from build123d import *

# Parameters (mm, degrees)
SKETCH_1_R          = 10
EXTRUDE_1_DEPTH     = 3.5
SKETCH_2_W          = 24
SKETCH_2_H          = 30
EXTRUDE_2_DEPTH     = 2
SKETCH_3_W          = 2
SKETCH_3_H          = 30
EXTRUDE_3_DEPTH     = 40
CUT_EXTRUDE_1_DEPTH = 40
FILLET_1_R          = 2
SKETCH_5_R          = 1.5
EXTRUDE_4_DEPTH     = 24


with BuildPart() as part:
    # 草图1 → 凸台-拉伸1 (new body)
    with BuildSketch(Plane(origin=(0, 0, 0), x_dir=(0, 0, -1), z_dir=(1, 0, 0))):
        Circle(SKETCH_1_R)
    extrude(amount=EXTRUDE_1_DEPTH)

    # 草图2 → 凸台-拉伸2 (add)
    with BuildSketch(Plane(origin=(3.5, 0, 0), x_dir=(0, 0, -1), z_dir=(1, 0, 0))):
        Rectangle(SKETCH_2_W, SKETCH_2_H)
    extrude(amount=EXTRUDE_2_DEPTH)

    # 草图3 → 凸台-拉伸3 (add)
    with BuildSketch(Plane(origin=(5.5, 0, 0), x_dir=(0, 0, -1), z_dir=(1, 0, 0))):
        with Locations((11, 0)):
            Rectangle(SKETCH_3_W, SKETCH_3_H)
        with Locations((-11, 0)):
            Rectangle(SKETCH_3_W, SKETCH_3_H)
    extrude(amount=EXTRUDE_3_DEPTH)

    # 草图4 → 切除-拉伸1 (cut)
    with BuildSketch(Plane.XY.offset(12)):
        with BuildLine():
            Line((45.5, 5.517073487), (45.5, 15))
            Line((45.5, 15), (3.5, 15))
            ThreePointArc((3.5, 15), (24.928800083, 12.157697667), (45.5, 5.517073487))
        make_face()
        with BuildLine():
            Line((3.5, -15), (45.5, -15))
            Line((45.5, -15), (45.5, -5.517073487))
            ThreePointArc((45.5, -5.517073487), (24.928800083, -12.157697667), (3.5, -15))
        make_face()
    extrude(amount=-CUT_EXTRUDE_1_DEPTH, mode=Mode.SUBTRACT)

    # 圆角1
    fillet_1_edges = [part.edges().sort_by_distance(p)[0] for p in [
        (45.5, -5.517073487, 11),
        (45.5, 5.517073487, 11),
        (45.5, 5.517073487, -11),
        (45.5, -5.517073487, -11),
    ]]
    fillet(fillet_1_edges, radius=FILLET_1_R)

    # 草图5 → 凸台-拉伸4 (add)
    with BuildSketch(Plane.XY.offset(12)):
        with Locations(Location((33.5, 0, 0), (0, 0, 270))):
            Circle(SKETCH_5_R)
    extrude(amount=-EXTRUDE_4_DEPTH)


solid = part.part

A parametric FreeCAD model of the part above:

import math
import FreeCAD as App
import Part
import Sketcher

V = App.Vector
Q = App.Units.Quantity


def edges_at(feature, points):
    """Names of the edges that pass closest to the given points."""
    edges = feature.Shape.Edges
    near = lambda p: min(range(len(edges)), key=lambda i: edges[i].distToShape(Part.Vertex(*p))[0])
    return sorted({f"Edge{near(p) + 1}" for p in points})


def add_polygon(sketch, points):
    """Adds a closed chain of lines whose ends are joined by coincident constraints."""
    first, n = sketch.GeometryCount, len(points)
    for a, b in zip(points, points[1:] + points[:1]):
        sketch.addGeometry(Part.LineSegment(App.Vector(*a, 0), App.Vector(*b, 0)), False)
    for i in range(n):
        sketch.addConstraint(Sketcher.Constraint("Coincident", first + i, 2, first + (i + 1) % n, 1))

doc = App.newDocument("Part")
params = doc.addObject("Spreadsheet::Sheet", "Params")
for row, (alias, value) in enumerate([
    ("sketch1_diameter", "20 mm"),
    ("pad1_length", "3.5 mm"),
    ("sketch2_width", "30 mm"),
    ("sketch2_height", "24 mm"),
    ("pad2_length", "2 mm"),
    ("sketch3_width", "30 mm"),
    ("sketch3_height", "2 mm"),
    ("pad3_length", "40 mm"),
    ("sketch4_radius", "120 mm"),
    ("sketch4_width", "42 mm"),
    ("pocket1_length", "40 mm"),
    ("fillet_radius", "2 mm"),
    ("sketch5_diameter", "3 mm"),
    ("pad4_length", "24 mm"),
], start=1):
    params.set(f"A{row}", alias)
    params.set(f"B{row}", "=" + value)
    params.setAlias(f"B{row}", alias)

body = doc.addObject("PartDesign::Body", "Body")

sketch1 = doc.addObject("Sketcher::SketchObject", "Sketch")
body.addObject(sketch1)
sketch1.AttachmentSupport = (doc.YZ_Plane, [""])
sketch1.MapMode = "FlatFace"
sketch1.addGeometry(Part.Circle(V(0, 0, 0), V(0, 0, 1), 10), False)
sketch1.addConstraint([
    Sketcher.Constraint("Coincident", 0, 3, -1, 1),
    Sketcher.Constraint("Diameter", 0, Q("20 mm")),
])
sketch1.setExpression("Constraints[1]", "Params.sketch1_diameter")
pad1 = doc.addObject("PartDesign::Pad", "Pad")
body.addObject(pad1)
pad1.Profile = sketch1
pad1.setExpression("Length", "Params.pad1_length")

sketch2 = doc.addObject("Sketcher::SketchObject", "Sketch001")
body.addObject(sketch2)
sketch2.AttachmentSupport = (doc.YZ_Plane, [""])
sketch2.MapMode = "FlatFace"
sketch2.AttachmentOffset = App.Placement(V(0, 0, 3.5), App.Rotation())
add_polygon(sketch2, [(15, 12), (-15, 12), (-15, -12), (15, -12)])
sketch2.addConstraint([
    Sketcher.Constraint("Horizontal", 0),
    Sketcher.Constraint("Vertical", 1),
    Sketcher.Constraint("Horizontal", 2),
    Sketcher.Constraint("Vertical", 3),
    Sketcher.Constraint("Symmetric", 0, 2, 2, 2, -1, 1),
    Sketcher.Constraint("DistanceX", 0, 2, 0, 1, Q("30 mm")),
    Sketcher.Constraint("DistanceY", 1, 2, 1, 1, Q("24 mm")),
])
sketch2.setExpression("Constraints[9]", "Params.sketch2_width")
sketch2.setExpression("Constraints[10]", "Params.sketch2_height")
pad2 = doc.addObject("PartDesign::Pad", "Pad001")
body.addObject(pad2)
pad2.Profile = sketch2
pad2.setExpression("Length", "Params.pad2_length")

sketch3 = doc.addObject("Sketcher::SketchObject", "Sketch002")
body.addObject(sketch3)
sketch3.AttachmentSupport = (doc.YZ_Plane, [""])
sketch3.MapMode = "FlatFace"
sketch3.AttachmentOffset = App.Placement(V(0, 0, 5.5), App.Rotation())
add_polygon(sketch3, [(15, -10), (-15, -10), (-15, -12), (15, -12)])
add_polygon(sketch3, [(15, 12), (-15, 12), (-15, 10), (15, 10)])
sketch3.addConstraint([
    Sketcher.Constraint("Horizontal", 0),
    Sketcher.Constraint("Vertical", 1),
    Sketcher.Constraint("Horizontal", 2),
    Sketcher.Constraint("Vertical", 3),
    Sketcher.Constraint("Horizontal", 4),
    Sketcher.Constraint("Vertical", 5),
    Sketcher.Constraint("Horizontal", 6),
    Sketcher.Constraint("Vertical", 7),
    Sketcher.Constraint("Symmetric", 2, 2, 4, 2, -1, 1),
    Sketcher.Constraint("Symmetric", 0, 2, 6, 2, -1, 1),
    Sketcher.Constraint("Vertical", 1, 2, 4, 2),
    Sketcher.Constraint("DistanceX", 0, 2, 0, 1, Q("30 mm")),
    Sketcher.Constraint("DistanceY", 1, 2, 1, 1, Q("2 mm")),
    Sketcher.Constraint("DistanceY", 0, 2, -1, 1, Q("10 mm")),
])
sketch3.setExpression("Constraints[19]", "Params.sketch3_width")
sketch3.setExpression("Constraints[20]", "Params.sketch3_height")
pad3 = doc.addObject("PartDesign::Pad", "Pad002")
body.addObject(pad3)
pad3.Profile = sketch3
pad3.setExpression("Length", "Params.pad3_length")

sketch4 = doc.addObject("Sketcher::SketchObject", "Sketch003")
body.addObject(sketch4)
sketch4.AttachmentSupport = (doc.XY_Plane, [""])
sketch4.MapMode = "FlatFace"
sketch4.AttachmentOffset = App.Placement(V(0, 0, 12), App.Rotation())
sketch4.addGeometry([
    Part.LineSegment(V(46, 6, 0), V(46, 15, 0)),
    Part.LineSegment(V(46, 15, 0), V(4, 15, 0)),
    Part.ArcOfCircle(Part.Circle(V(-2, -105, 0), V(0, 0, 1), 120), math.radians(67), math.radians(88)),
    Part.LineSegment(V(4, -15, 0), V(46, -15, 0)),
    Part.LineSegment(V(46, -15, 0), V(46, -6, 0)),
    Part.ArcOfCircle(Part.Circle(V(-2, 105, 0), V(0, 0, 1), 120), math.radians(-88), math.radians(-67)),
], False)
sketch4.addConstraint([
    Sketcher.Constraint("Coincident", 0, 2, 1, 1),
    Sketcher.Constraint("Coincident", 1, 2, 2, 2),
    Sketcher.Constraint("Coincident", 2, 1, 0, 1),
    Sketcher.Constraint("Coincident", 3, 2, 4, 1),
    Sketcher.Constraint("Coincident", 4, 2, 5, 2),
    Sketcher.Constraint("Coincident", 5, 1, 3, 1),
    Sketcher.Constraint("Vertical", 0),
    Sketcher.Constraint("Horizontal", 1),
    Sketcher.Constraint("Horizontal", 3),
    Sketcher.Constraint("Vertical", 4),
    Sketcher.Constraint("Equal", 2, 5),
    Sketcher.Constraint("Symmetric", 2, 3, 5, 3, -1),
    Sketcher.Constraint("Symmetric", 0, 2, 3, 2, -1),
    Sketcher.Constraint("Radius", 2, Q("120 mm")),
    Sketcher.Constraint("DistanceX", 1, 2, 1, 1, Q("42 mm")),
    Sketcher.Constraint("DistanceY", -1, 1, 0, 2, Q("15 mm")),
    Sketcher.Constraint("DistanceX", 5, 3, 0, 2, Q("47 mm")),
    Sketcher.Constraint("DistanceX", 2, 3, -1, 1, Q("1.5 mm")),
])
sketch4.setExpression("Constraints[13]", "Params.sketch4_radius")
sketch4.setExpression("Constraints[14]", "Params.sketch4_width")
pocket1 = doc.addObject("PartDesign::Pocket", "Pocket")
body.addObject(pocket1)
pocket1.Profile = sketch4
pocket1.setExpression("Length", "Params.pocket1_length")
doc.recompute()

fillet = doc.addObject("PartDesign::Fillet", "Fillet")
body.addObject(fillet)
fillet.Base = (pocket1, edges_at(pocket1, [
    (45.5, -5.517, 11),
    (45.5, 5.517, 11),
    (45.5, 5.517, -11),
    (45.5, -5.517, -11),
]))
fillet.setExpression("Radius", "Params.fillet_radius")

sketch5 = doc.addObject("Sketcher::SketchObject", "Sketch004")
body.addObject(sketch5)
sketch5.AttachmentSupport = (doc.XY_Plane, [""])
sketch5.MapMode = "FlatFace"
sketch5.AttachmentOffset = App.Placement(V(0, 0, 12), App.Rotation())
sketch5.addGeometry(Part.Circle(V(33.5, 0, 0), V(0, 0, 1), 1.5), False)
sketch5.addConstraint([
    Sketcher.Constraint("PointOnObject", 0, 3, -1),
    Sketcher.Constraint("Diameter", 0, Q("3 mm")),
    Sketcher.Constraint("DistanceX", -1, 1, 0, 3, Q("33.5 mm")),
])
sketch5.setExpression("Constraints[1]", "Params.sketch5_diameter")
pad4 = doc.addObject("PartDesign::Pad", "Pad003")
body.addObject(pad4)
pad4.Profile = sketch5
pad4.setExpression("Length", "Params.pad4_length")
pad4.Reversed = True

doc.recompute()
